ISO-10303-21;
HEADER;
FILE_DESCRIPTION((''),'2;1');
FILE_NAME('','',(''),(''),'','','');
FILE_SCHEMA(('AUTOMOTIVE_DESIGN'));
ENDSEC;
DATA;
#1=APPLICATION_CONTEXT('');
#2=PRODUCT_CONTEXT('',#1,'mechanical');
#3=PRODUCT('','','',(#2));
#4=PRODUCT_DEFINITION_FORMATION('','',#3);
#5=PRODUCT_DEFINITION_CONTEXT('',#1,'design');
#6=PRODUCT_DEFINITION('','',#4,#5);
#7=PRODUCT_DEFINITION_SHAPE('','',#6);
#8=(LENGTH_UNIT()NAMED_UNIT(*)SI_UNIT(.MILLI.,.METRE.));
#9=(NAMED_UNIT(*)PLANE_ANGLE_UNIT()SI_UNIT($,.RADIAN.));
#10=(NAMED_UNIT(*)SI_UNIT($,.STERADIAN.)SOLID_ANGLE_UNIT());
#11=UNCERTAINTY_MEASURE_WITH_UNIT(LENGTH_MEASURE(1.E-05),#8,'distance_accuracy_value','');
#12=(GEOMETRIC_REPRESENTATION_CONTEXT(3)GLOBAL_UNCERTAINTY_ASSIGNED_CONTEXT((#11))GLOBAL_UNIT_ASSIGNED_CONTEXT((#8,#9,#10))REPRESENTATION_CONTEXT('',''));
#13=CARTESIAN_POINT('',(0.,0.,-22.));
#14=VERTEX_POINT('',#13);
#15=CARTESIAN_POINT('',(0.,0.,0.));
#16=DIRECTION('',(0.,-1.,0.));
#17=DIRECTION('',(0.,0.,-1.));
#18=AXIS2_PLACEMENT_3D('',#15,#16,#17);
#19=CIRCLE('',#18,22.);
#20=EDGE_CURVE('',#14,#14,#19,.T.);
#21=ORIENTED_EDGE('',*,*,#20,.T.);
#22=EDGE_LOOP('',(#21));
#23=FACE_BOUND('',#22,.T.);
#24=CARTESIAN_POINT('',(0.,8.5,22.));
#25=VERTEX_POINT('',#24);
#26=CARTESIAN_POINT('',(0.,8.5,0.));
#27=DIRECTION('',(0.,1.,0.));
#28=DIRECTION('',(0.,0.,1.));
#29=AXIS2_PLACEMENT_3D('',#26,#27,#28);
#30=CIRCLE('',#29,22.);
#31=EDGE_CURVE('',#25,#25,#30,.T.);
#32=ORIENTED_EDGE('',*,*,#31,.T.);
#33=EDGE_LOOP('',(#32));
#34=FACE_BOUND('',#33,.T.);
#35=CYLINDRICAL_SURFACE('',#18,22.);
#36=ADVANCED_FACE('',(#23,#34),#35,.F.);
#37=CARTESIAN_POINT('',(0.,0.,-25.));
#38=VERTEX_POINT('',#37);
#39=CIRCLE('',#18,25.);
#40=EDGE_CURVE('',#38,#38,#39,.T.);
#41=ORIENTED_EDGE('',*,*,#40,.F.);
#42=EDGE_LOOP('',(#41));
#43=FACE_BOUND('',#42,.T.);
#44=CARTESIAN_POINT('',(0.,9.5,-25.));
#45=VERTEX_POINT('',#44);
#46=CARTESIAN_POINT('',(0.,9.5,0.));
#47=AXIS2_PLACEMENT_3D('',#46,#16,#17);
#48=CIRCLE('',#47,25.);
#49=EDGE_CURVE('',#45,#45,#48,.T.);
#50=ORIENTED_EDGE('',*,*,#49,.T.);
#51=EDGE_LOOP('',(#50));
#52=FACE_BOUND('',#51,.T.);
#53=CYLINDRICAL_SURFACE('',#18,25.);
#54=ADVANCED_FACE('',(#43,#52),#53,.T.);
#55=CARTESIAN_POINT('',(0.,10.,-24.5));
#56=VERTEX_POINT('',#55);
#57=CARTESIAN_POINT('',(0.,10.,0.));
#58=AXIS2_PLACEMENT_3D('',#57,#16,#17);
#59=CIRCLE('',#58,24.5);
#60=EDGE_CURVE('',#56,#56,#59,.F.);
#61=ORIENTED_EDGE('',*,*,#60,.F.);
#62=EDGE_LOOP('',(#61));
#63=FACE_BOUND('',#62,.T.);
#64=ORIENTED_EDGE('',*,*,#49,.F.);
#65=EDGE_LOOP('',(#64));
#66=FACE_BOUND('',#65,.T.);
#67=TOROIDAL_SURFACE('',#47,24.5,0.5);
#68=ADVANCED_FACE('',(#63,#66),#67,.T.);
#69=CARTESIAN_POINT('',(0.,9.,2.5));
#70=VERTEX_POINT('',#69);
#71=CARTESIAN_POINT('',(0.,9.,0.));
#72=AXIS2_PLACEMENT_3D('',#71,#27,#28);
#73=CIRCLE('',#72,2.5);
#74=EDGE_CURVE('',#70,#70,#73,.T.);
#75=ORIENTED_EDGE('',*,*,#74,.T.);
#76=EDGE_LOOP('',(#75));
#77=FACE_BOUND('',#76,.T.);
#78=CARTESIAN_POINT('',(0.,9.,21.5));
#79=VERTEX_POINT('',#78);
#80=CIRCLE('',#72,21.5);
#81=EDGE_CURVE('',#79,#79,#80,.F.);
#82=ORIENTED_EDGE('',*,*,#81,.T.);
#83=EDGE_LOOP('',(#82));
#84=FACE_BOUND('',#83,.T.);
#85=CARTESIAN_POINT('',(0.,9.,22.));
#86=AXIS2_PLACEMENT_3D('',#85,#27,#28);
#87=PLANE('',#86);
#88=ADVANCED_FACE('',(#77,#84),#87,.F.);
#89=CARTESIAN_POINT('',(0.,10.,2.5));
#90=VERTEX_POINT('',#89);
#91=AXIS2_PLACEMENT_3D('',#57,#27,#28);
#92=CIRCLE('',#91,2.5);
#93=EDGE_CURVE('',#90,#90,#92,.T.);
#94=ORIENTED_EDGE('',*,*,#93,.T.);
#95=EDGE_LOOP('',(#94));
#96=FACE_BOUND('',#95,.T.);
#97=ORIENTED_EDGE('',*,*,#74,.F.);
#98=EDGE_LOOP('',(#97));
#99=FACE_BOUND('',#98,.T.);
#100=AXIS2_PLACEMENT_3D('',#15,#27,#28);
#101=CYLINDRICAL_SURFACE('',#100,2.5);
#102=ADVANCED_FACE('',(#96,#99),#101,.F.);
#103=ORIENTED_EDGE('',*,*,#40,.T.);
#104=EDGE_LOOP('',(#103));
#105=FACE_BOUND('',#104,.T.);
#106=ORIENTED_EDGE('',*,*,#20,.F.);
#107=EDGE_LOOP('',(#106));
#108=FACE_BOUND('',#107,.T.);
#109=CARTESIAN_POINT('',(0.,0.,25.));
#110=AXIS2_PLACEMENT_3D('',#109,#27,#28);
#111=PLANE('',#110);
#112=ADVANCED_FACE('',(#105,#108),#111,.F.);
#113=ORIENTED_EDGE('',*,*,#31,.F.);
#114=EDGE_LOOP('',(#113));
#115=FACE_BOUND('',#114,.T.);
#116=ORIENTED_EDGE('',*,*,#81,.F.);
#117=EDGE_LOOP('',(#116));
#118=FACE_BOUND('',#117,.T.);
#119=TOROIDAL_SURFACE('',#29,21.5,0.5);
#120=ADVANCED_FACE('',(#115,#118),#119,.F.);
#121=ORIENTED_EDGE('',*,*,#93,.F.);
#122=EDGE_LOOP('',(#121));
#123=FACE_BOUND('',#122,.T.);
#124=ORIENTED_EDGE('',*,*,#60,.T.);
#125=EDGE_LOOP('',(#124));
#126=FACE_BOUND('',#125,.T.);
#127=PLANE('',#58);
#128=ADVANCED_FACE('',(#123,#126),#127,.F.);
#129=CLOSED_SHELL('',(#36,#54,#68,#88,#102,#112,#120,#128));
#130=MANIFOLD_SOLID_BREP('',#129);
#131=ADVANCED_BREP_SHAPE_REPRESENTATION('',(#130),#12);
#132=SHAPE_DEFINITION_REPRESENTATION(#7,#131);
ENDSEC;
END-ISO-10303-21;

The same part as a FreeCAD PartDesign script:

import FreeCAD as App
import Part
import Sketcher

V = App.Vector
Q = App.Units.Quantity


def edges_at(feature, points):
    """Names of the edges that pass closest to the given points."""
    edges = feature.Shape.Edges
    near = lambda p: min(range(len(edges)), key=lambda i: edges[i].distToShape(Part.Vertex(*p))[0])
    return sorted({f"Edge{near(p) + 1}" for p in points})


def add_polygon(sketch, points):
    """Adds a closed chain of lines whose ends are joined by coincident constraints."""
    first, n = sketch.GeometryCount, len(points)
    for a, b in zip(points, points[1:] + points[:1]):
        sketch.addGeometry(Part.LineSegment(App.Vector(*a, 0), App.Vector(*b, 0)), False)
    for i in range(n):
        sketch.addConstraint(Sketcher.Constraint("Coincident", first + i, 2, first + (i + 1) % n, 1))

doc = App.newDocument("Part")
params = doc.addObject("Spreadsheet::Sheet", "Params")
for row, (alias, value) in enumerate([
    ("sketch1_width", "10 mm"),
    ("sketch1_width2", "9 mm"),
    ("sketch1_height", "25 mm"),
    ("sketch1_height2", "3 mm"),
    ("revolution_angle", "360 deg"),
    ("fillet_radius", "0.5 mm"),
    ("sketch2_diameter", "5 mm"),
    ("pocket1_length", "10 mm"),
], start=1):
    params.set(f"A{row}", alias)
    params.set(f"B{row}", "=" + value)
    params.setAlias(f"B{row}", alias)

body = doc.addObject("PartDesign::Body", "Body")

sketch1 = body.newObject("Sketcher::SketchObject", "Sketch")
sketch1.AttachmentSupport = (doc.getObject("YZ_Plane"), [""])
sketch1.MapMode = "FlatFace"
add_polygon(sketch1, [(10, 0), (10, 25), (0, 25), (0, 22), (9, 22), (9, 0)])
sketch1.addConstraint(Sketcher.Constraint("Vertical", 0))
sketch1.addConstraint(Sketcher.Constraint("Horizontal", 1))
sketch1.addConstraint(Sketcher.Constraint("Vertical", 2))
sketch1.addConstraint(Sketcher.Constraint("Horizontal", 3))
sketch1.addConstraint(Sketcher.Constraint("Vertical", 4))
sketch1.addConstraint(Sketcher.Constraint("Horizontal", 5))
sketch1.addConstraint(Sketcher.Constraint("PointOnObject", 1, 2, -2))
sketch1.addConstraint(Sketcher.Constraint("PointOnObject", 4, 2, -1))
sketch1.addConstraint(Sketcher.Constraint("DistanceX", 1, 2, 1, 1, Q("10 mm")))
sketch1.addConstraint(Sketcher.Constraint("DistanceX", 3, 1, 3, 2, Q("9 mm")))
sketch1.addConstraint(Sketcher.Constraint("DistanceY", 0, 1, 0, 2, Q("25 mm")))
sketch1.addConstraint(Sketcher.Constraint("DistanceY", 2, 2, 2, 1, Q("3 mm")))
sketch1.setExpression("Constraints[14]", "Params.sketch1_width")
sketch1.setExpression("Constraints[15]", "Params.sketch1_width2")
sketch1.setExpression("Constraints[16]", "Params.sketch1_height")
sketch1.setExpression("Constraints[17]", "Params.sketch1_height2")
revolution = body.newObject("PartDesign::Revolution", "Revolution")
revolution.Profile = sketch1
revolution.ReferenceAxis = (sketch1, ["H_Axis"])
revolution.setExpression("Angle", "Params.revolution_angle")
doc.recompute()

fillet = body.newObject("PartDesign::Fillet", "Fillet")
fillet.Base = (revolution, edges_at(revolution, [(0, 9, 22), (0, 10, 25)]))
fillet.setExpression("Radius", "Params.fillet_radius")

sketch2 = body.newObject("Sketcher::SketchObject", "Sketch001")
sketch2.AttachmentSupport = (doc.getObject("XZ_Plane"), [""])
sketch2.MapMode = "FlatFace"
sketch2.AttachmentOffset = App.Placement(V(0, 0, -10), App.Rotation())
sketch2.addGeometry(Part.Circle(V(0, 0, 0), V(0, 0, 1), 2.5), False)
sketch2.addConstraint(Sketcher.Constraint("Coincident", 0, 3, -1, 1))
sketch2.addConstraint(Sketcher.Constraint("Diameter", 0, Q("5 mm")))
sketch2.setExpression("Constraints[1]", "Params.sketch2_diameter")
pocket1 = body.newObject("PartDesign::Pocket", "Pocket")
pocket1.Profile = sketch2
pocket1.setExpression("Length", "Params.pocket1_length")
pocket1.Reversed = True

doc.recompute()
